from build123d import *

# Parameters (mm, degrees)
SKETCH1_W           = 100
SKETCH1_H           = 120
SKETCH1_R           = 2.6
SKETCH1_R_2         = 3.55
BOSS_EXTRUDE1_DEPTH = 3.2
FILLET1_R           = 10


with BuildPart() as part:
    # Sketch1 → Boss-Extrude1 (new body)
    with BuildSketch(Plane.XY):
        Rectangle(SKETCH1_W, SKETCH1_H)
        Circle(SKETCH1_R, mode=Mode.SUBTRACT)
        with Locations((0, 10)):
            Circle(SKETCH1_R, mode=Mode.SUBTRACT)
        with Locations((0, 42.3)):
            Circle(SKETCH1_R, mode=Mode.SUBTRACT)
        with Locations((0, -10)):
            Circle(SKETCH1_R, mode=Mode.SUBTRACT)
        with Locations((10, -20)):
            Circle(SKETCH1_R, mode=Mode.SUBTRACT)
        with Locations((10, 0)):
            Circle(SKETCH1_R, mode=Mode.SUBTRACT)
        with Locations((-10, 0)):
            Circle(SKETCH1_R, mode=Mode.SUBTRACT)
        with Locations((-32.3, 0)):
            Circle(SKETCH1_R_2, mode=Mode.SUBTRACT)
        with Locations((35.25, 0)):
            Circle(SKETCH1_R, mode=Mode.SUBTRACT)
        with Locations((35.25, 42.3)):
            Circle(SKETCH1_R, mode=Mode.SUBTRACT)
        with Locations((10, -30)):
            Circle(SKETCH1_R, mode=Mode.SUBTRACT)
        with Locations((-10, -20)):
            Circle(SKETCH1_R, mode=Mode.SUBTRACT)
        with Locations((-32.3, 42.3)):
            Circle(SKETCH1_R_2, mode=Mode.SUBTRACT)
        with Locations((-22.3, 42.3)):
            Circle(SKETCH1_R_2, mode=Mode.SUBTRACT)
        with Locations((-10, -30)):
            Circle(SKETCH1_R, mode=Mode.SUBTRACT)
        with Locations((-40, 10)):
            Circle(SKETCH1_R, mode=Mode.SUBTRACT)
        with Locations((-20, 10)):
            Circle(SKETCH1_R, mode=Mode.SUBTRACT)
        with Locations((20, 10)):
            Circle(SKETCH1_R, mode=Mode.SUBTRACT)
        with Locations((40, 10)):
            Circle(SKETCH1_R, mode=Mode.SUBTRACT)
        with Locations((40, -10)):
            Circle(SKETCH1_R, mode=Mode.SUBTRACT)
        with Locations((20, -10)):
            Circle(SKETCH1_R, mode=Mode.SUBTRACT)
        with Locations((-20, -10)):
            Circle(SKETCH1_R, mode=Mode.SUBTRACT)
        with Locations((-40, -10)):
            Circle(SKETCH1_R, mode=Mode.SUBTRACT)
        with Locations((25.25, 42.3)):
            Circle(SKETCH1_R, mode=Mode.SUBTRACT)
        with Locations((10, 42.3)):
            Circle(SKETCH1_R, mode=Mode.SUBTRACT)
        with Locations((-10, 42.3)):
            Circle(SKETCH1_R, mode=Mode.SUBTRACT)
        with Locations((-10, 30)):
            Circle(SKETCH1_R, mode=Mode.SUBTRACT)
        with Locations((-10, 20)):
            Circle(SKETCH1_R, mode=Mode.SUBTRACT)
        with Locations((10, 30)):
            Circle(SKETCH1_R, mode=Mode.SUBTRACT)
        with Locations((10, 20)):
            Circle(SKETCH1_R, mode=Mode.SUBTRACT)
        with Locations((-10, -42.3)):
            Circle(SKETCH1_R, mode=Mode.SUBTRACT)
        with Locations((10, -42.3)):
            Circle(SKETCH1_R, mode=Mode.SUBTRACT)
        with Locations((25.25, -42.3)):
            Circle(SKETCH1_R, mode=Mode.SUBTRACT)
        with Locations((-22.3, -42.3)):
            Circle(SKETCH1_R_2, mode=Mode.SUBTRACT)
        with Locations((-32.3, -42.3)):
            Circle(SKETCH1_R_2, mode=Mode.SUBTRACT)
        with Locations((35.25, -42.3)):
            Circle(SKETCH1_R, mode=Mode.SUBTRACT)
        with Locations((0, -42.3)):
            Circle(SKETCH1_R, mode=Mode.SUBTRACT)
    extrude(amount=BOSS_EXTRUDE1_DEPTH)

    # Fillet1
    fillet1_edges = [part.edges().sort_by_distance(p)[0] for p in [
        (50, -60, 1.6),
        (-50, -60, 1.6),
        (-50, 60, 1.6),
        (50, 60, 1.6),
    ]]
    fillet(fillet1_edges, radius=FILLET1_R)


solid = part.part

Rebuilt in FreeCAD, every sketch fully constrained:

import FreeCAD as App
import Part
import Sketcher
Q = App.Units.Quantity


def edges_at(feature, points):
    """Names of the edges that pass closest to the given points."""
    edges = feature.Shape.Edges
    near = lambda p: min(range(len(edges)), key=lambda i: edges[i].distToShape(Part.Vertex(*p))[0])
    return sorted({f"Edge{near(p) + 1}" for p in points})

doc = App.newDocument("Part")
body = doc.addObject("PartDesign::Body", "Body")

# Sketch on XY plane
sketch1 = body.newObject("Sketcher::SketchObject", "Sketch")
sketch1.AttachmentSupport = (doc.getObject("XY_Plane"), [""])
sketch1.MapMode = "FlatFace"
sketch1.addGeometry(Part.LineSegment(App.Vector(-50, 60, 0), App.Vector(-50, -60, 0)), False)
sketch1.addGeometry(Part.LineSegment(App.Vector(-50, -60, 0), App.Vector(50, -60, 0)), False)
sketch1.addGeometry(Part.LineSegment(App.Vector(50, -60, 0), App.Vector(50, 60, 0)), False)
sketch1.addGeometry(Part.LineSegment(App.Vector(50, 60, 0), App.Vector(-50, 60, 0)), False)
sketch1.addGeometry(Part.Circle(App.Vector(-32.3, -42.3, 0), App.Vector(0, 0, 1), 3.55), False)
sketch1.addGeometry(Part.Circle(App.Vector(-22.3, -42.3, 0), App.Vector(0, 0, 1), 3.55), False)
sketch1.addGeometry(Part.Circle(App.Vector(-10, -42.3, 0), App.Vector(0, 0, 1), 2.6), False)
sketch1.addGeometry(Part.Circle(App.Vector(-10, -30, 0), App.Vector(0, 0, 1), 2.6), False)
sketch1.addGeometry(Part.Circle(App.Vector(-40, -10, 0), App.Vector(0, 0, 1), 2.6), False)
sketch1.addGeometry(Part.Circle(App.Vector(-10, -20, 0), App.Vector(0, 0, 1), 2.6), False)
sketch1.addGeometry(Part.Circle(App.Vector(-20, -10, 0), App.Vector(0, 0, 1), 2.6), False)
sketch1.addGeometry(Part.Circle(App.Vector(0, -42.3, 0), App.Vector(0, 0, 1), 2.6), False)
sketch1.addGeometry(Part.Circle(App.Vector(10, -42.3, 0), App.Vector(0, 0, 1), 2.6), False)
sketch1.addGeometry(Part.Circle(App.Vector(10, -30, 0), App.Vector(0, 0, 1), 2.6), False)
sketch1.addGeometry(Part.Circle(App.Vector(25.25, -42.3, 0), App.Vector(0, 0, 1), 2.6), False)
sketch1.addGeometry(Part.Circle(App.Vector(35.25, -42.3, 0), App.Vector(0, 0, 1), 2.6), False)
sketch1.addGeometry(Part.Circle(App.Vector(10, -20, 0), App.Vector(0, 0, 1), 2.6), False)
sketch1.addGeometry(Part.Circle(App.Vector(0, -10, 0), App.Vector(0, 0, 1), 2.6), False)
sketch1.addGeometry(Part.Circle(App.Vector(20, -10, 0), App.Vector(0, 0, 1), 2.6), False)
sketch1.addGeometry(Part.Circle(App.Vector(40, -10, 0), App.Vector(0, 0, 1), 2.6), False)
sketch1.addGeometry(Part.Circle(App.Vector(-32.3, 0, 0), App.Vector(0, 0, 1), 3.55), False)
sketch1.addGeometry(Part.Circle(App.Vector(-40, 10, 0), App.Vector(0, 0, 1), 2.6), False)
sketch1.addGeometry(Part.Circle(App.Vector(-20, 10, 0), App.Vector(0, 0, 1), 2.6), False)
sketch1.addGeometry(Part.Circle(App.Vector(-10, 0, 0), App.Vector(0, 0, 1), 2.6), False)
sketch1.addGeometry(Part.Circle(App.Vector(-10, 20, 0), App.Vector(0, 0, 1), 2.6), False)
sketch1.addGeometry(Part.Circle(App.Vector(-32.3, 42.3, 0), App.Vector(0, 0, 1), 3.55), False)
sketch1.addGeometry(Part.Circle(App.Vector(-22.3, 42.3, 0), App.Vector(0, 0, 1), 3.55), False)
sketch1.addGeometry(Part.Circle(App.Vector(-10, 30, 0), App.Vector(0, 0, 1), 2.6), False)
sketch1.addGeometry(Part.Circle(App.Vector(-10, 42.3, 0), App.Vector(0, 0, 1), 2.6), False)
sketch1.addGeometry(Part.Circle(App.Vector(0, 0, 0), App.Vector(0, 0, 1), 2.6), False)
sketch1.addGeometry(Part.Circle(App.Vector(10, 0, 0), App.Vector(0, 0, 1), 2.6), False)
sketch1.addGeometry(Part.Circle(App.Vector(0, 10, 0), App.Vector(0, 0, 1), 2.6), False)
sketch1.addGeometry(Part.Circle(App.Vector(20, 10, 0), App.Vector(0, 0, 1), 2.6), False)
sketch1.addGeometry(Part.Circle(App.Vector(10, 20, 0), App.Vector(0, 0, 1), 2.6), False)
sketch1.addGeometry(Part.Circle(App.Vector(35.25, 0, 0), App.Vector(0, 0, 1), 2.6), False)
sketch1.addGeometry(Part.Circle(App.Vector(40, 10, 0), App.Vector(0, 0, 1), 2.6), False)
sketch1.addGeometry(Part.Circle(App.Vector(10, 30, 0), App.Vector(0, 0, 1), 2.6), False)
sketch1.addGeometry(Part.Circle(App.Vector(0, 42.3, 0), App.Vector(0, 0, 1), 2.6), False)
sketch1.addGeometry(Part.Circle(App.Vector(10, 42.3, 0), App.Vector(0, 0, 1), 2.6), False)
sketch1.addGeometry(Part.Circle(App.Vector(25.25, 42.3, 0), App.Vector(0, 0, 1), 2.6), False)
sketch1.addGeometry(Part.Circle(App.Vector(35.25, 42.3, 0), App.Vector(0, 0, 1), 2.6), False)
sketch1.addConstraint(Sketcher.Constraint("Coincident", 0, 2, 1, 1))
sketch1.addConstraint(Sketcher.Constraint("Coincident", 1, 2, 2, 1))
sketch1.addConstraint(Sketcher.Constraint("Coincident", 2, 2, 3, 1))
sketch1.addConstraint(Sketcher.Constraint("Coincident", 3, 2, 0, 1))
sketch1.addConstraint(Sketcher.Constraint("Vertical", 0))
sketch1.addConstraint(Sketcher.Constraint("Horizontal", 1))
sketch1.addConstraint(Sketcher.Constraint("Vertical", 2))
sketch1.addConstraint(Sketcher.Constraint("Horizontal", 3))
sketch1.addConstraint(Sketcher.Constraint("Coincident", 29, 3, -1, 1))
sketch1.addConstraint(Sketcher.Constraint("Equal", 4, 5))
sketch1.addConstraint(Sketcher.Constraint("Equal", 6, 7))
sketch1.addConstraint(Sketcher.Constraint("Equal", 7, 8))
sketch1.addConstraint(Sketcher.Constraint("Equal", 8, 9))
sketch1.addConstraint(Sketcher.Constraint("Equal", 9, 10))
sketch1.addConstraint(Sketcher.Constraint("Equal", 10, 11))
sketch1.addConstraint(Sketcher.Constraint("Equal", 11, 12))
sketch1.addConstraint(Sketcher.Constraint("Equal", 12, 13))
sketch1.addConstraint(Sketcher.Constraint("Equal", 13, 14))
sketch1.addConstraint(Sketcher.Constraint("Equal", 14, 15))
sketch1.addConstraint(Sketcher.Constraint("Equal", 15, 16))
sketch1.addConstraint(Sketcher.Constraint("Equal", 16, 17))
sketch1.addConstraint(Sketcher.Constraint("Equal", 17, 18))
sketch1.addConstraint(Sketcher.Constraint("Equal", 18, 19))
sketch1.addConstraint(Sketcher.Constraint("Equal", 5, 20))
sketch1.addConstraint(Sketcher.Constraint("Equal", 19, 21))
sketch1.addConstraint(Sketcher.Constraint("Equal", 21, 22))
sketch1.addConstraint(Sketcher.Constraint("Equal", 22, 23))
sketch1.addConstraint(Sketcher.Constraint("Equal", 23, 24))
sketch1.addConstraint(Sketcher.Constraint("Equal", 20, 25))
sketch1.addConstraint(Sketcher.Constraint("Equal", 25, 26))
sketch1.addConstraint(Sketcher.Constraint("Equal", 24, 27))
sketch1.addConstraint(Sketcher.Constraint("Equal", 27, 28))
sketch1.addConstraint(Sketcher.Constraint("Equal", 28, 29))
sketch1.addConstraint(Sketcher.Constraint("Equal", 29, 30))
sketch1.addConstraint(Sketcher.Constraint("Equal", 30, 31))
sketch1.addConstraint(Sketcher.Constraint("Equal", 31, 32))
sketch1.addConstraint(Sketcher.Constraint("Equal", 32, 33))
sketch1.addConstraint(Sketcher.Constraint("Equal", 33, 34))
sketch1.addConstraint(Sketcher.Constraint("Equal", 34, 35))
sketch1.addConstraint(Sketcher.Constraint("Equal", 35, 36))
sketch1.addConstraint(Sketcher.Constraint("Equal", 36, 37))
sketch1.addConstraint(Sketcher.Constraint("Equal", 37, 38))
sketch1.addConstraint(Sketcher.Constraint("Equal", 38, 39))
sketch1.addConstraint(Sketcher.Constraint("Equal", 39, 40))
sketch1.addConstraint(Sketcher.Constraint("Symmetric", 19, 3, 21, 3, -1, 1))
sketch1.addConstraint(Sketcher.Constraint("Symmetric", 18, 3, 22, 3, -1, 1))
sketch1.addConstraint(Sketcher.Constraint("Symmetric", 16, 3, 24, 3, -1, 1))
sketch1.addConstraint(Sketcher.Constraint("Symmetric", 13, 3, 27, 3, -1, 1))
sketch1.addConstraint(Sketcher.Constraint("Symmetric", 12, 3, 28, 3, -1, 1))
sketch1.addConstraint(Sketcher.Constraint("Symmetric", 23, 3, 30, 3, -1, 1))
sketch1.addConstraint(Sketcher.Constraint("Symmetric", 17, 3, 31, 3, -1, 1))
sketch1.addConstraint(Sketcher.Constraint("Symmetric", 10, 3, 32, 3, -1, 1))
sketch1.addConstraint(Sketcher.Constraint("Symmetric", 9, 3, 33, 3, -1, 1))
sketch1.addConstraint(Sketcher.Constraint("Symmetric", 8, 3, 35, 3, -1, 1))
sketch1.addConstraint(Sketcher.Constraint("Symmetric", 7, 3, 36, 3, -1, 1))
sketch1.addConstraint(Sketcher.Constraint("Symmetric", 11, 3, 37, 3, -1, 1))
sketch1.addConstraint(Sketcher.Constraint("Symmetric", 6, 3, 38, 3, -1, 1))
sketch1.addConstraint(Sketcher.Constraint("Symmetric", 0, 2, 2, 2, -1, 1))
sketch1.addConstraint(Sketcher.Constraint("Symmetric", 6, 3, 12, 3, -2))
sketch1.addConstraint(Sketcher.Constraint("Symmetric", 7, 3, 13, 3, -2))
sketch1.addConstraint(Sketcher.Constraint("Symmetric", 9, 3, 16, 3, -2))
sketch1.addConstraint(Sketcher.Constraint("Symmetric", 10, 3, 18, 3, -2))
sketch1.addConstraint(Sketcher.Constraint("Symmetric", 8, 3, 19, 3, -2))
sketch1.addConstraint(Sketcher.Constraint("Symmetric", 4, 3, 25, 3, -1))
sketch1.addConstraint(Sketcher.Constraint("Symmetric", 5, 3, 26, 3, -1))
sketch1.addConstraint(Sketcher.Constraint("Symmetric", 14, 3, 39, 3, -1))
sketch1.addConstraint(Sketcher.Constraint("Symmetric", 15, 3, 40, 3, -1))
sketch1.addConstraint(Sketcher.Constraint("PointOnObject", 11, 3, -2))
sketch1.addConstraint(Sketcher.Constraint("PointOnObject", 17, 3, -2))
sketch1.addConstraint(Sketcher.Constraint("PointOnObject", 20, 3, -1))
sketch1.addConstraint(Sketcher.Constraint("PointOnObject", 23, 3, -1))
sketch1.addConstraint(Sketcher.Constraint("PointOnObject", 34, 3, -1))
sketch1.addConstraint(Sketcher.Constraint("Horizontal", 4, 3, 5, 3))
sketch1.addConstraint(Sketcher.Constraint("Horizontal", 5, 3, 6, 3))
sketch1.addConstraint(Sketcher.Constraint("Horizontal", 8, 3, 10, 3))
sketch1.addConstraint(Sketcher.Constraint("Horizontal", 6, 3, 11, 3))
sketch1.addConstraint(Sketcher.Constraint("Horizontal", 12, 3, 14, 3))
sketch1.addConstraint(Sketcher.Constraint("Horizontal", 14, 3, 15, 3))
sketch1.addConstraint(Sketcher.Constraint("Horizontal", 10, 3, 17, 3))
sketch1.addConstraint(Sketcher.Constraint("Vertical", 6, 3, 7, 3))
sketch1.addConstraint(Sketcher.Constraint("Vertical", 7, 3, 9, 3))
sketch1.addConstraint(Sketcher.Constraint("Vertical", 4, 3, 20, 3))
sketch1.addConstraint(Sketcher.Constraint("Vertical", 9, 3, 23, 3))
sketch1.addConstraint(Sketcher.Constraint("Vertical", 15, 3, 34, 3))
sketch1.addConstraint(Sketcher.Constraint("Diameter", 4, Q("7.1 mm")))
sketch1.addConstraint(Sketcher.Constraint("Diameter", 6, Q("5.2 mm")))
sketch1.addConstraint(Sketcher.Constraint("DistanceX", 1, 1, 1, 2, Q("100 mm")))
sketch1.addConstraint(Sketcher.Constraint("DistanceY", 0, 2, 0, 1, Q("120 mm")))
sketch1.addConstraint(Sketcher.Constraint("DistanceX", 6, 3, -1, 1, Q("10 mm")))
sketch1.addConstraint(Sketcher.Constraint("DistanceY", 7, 3, -1, 1, Q("30 mm")))
sketch1.addConstraint(Sketcher.Constraint("DistanceX", 8, 3, -1, 1, Q("40 mm")))
sketch1.addConstraint(Sketcher.Constraint("DistanceY", 8, 3, -1, 1, Q("10 mm")))
sketch1.addConstraint(Sketcher.Constraint("DistanceY", 9, 3, -1, 1, Q("20 mm")))
sketch1.addConstraint(Sketcher.Constraint("DistanceX", 10, 3, -1, 1, Q("20 mm")))
sketch1.addConstraint(Sketcher.Constraint("DistanceX", 4, 3, 5, 3, Q("10 mm")))
sketch1.addConstraint(Sketcher.Constraint("DistanceX", 14, 3, 15, 3, Q("10 mm")))
sketch1.addConstraint(Sketcher.Constraint("DistanceX", 4, 3, -1, 1, Q("32.3 mm")))
sketch1.addConstraint(Sketcher.Constraint("DistanceY", 4, 3, -1, 1, Q("42.3 mm")))
sketch1.addConstraint(Sketcher.Constraint("DistanceX", -1, 1, 14, 3, Q("25.25 mm")))
pad1 = body.newObject("PartDesign::Pad", "Pad")
pad1.Profile = sketch1
pad1.Length = 3.2
doc.recompute()

fillet = body.newObject("PartDesign::Fillet", "Fillet")
fillet.Base = (pad1, edges_at(pad1, [
    (50, -60, 1.6),
    (-50, -60, 1.6),
    (-50, 60, 1.6),
    (50, 60, 1.6),
]))
fillet.Radius = 10

doc.recompute()
